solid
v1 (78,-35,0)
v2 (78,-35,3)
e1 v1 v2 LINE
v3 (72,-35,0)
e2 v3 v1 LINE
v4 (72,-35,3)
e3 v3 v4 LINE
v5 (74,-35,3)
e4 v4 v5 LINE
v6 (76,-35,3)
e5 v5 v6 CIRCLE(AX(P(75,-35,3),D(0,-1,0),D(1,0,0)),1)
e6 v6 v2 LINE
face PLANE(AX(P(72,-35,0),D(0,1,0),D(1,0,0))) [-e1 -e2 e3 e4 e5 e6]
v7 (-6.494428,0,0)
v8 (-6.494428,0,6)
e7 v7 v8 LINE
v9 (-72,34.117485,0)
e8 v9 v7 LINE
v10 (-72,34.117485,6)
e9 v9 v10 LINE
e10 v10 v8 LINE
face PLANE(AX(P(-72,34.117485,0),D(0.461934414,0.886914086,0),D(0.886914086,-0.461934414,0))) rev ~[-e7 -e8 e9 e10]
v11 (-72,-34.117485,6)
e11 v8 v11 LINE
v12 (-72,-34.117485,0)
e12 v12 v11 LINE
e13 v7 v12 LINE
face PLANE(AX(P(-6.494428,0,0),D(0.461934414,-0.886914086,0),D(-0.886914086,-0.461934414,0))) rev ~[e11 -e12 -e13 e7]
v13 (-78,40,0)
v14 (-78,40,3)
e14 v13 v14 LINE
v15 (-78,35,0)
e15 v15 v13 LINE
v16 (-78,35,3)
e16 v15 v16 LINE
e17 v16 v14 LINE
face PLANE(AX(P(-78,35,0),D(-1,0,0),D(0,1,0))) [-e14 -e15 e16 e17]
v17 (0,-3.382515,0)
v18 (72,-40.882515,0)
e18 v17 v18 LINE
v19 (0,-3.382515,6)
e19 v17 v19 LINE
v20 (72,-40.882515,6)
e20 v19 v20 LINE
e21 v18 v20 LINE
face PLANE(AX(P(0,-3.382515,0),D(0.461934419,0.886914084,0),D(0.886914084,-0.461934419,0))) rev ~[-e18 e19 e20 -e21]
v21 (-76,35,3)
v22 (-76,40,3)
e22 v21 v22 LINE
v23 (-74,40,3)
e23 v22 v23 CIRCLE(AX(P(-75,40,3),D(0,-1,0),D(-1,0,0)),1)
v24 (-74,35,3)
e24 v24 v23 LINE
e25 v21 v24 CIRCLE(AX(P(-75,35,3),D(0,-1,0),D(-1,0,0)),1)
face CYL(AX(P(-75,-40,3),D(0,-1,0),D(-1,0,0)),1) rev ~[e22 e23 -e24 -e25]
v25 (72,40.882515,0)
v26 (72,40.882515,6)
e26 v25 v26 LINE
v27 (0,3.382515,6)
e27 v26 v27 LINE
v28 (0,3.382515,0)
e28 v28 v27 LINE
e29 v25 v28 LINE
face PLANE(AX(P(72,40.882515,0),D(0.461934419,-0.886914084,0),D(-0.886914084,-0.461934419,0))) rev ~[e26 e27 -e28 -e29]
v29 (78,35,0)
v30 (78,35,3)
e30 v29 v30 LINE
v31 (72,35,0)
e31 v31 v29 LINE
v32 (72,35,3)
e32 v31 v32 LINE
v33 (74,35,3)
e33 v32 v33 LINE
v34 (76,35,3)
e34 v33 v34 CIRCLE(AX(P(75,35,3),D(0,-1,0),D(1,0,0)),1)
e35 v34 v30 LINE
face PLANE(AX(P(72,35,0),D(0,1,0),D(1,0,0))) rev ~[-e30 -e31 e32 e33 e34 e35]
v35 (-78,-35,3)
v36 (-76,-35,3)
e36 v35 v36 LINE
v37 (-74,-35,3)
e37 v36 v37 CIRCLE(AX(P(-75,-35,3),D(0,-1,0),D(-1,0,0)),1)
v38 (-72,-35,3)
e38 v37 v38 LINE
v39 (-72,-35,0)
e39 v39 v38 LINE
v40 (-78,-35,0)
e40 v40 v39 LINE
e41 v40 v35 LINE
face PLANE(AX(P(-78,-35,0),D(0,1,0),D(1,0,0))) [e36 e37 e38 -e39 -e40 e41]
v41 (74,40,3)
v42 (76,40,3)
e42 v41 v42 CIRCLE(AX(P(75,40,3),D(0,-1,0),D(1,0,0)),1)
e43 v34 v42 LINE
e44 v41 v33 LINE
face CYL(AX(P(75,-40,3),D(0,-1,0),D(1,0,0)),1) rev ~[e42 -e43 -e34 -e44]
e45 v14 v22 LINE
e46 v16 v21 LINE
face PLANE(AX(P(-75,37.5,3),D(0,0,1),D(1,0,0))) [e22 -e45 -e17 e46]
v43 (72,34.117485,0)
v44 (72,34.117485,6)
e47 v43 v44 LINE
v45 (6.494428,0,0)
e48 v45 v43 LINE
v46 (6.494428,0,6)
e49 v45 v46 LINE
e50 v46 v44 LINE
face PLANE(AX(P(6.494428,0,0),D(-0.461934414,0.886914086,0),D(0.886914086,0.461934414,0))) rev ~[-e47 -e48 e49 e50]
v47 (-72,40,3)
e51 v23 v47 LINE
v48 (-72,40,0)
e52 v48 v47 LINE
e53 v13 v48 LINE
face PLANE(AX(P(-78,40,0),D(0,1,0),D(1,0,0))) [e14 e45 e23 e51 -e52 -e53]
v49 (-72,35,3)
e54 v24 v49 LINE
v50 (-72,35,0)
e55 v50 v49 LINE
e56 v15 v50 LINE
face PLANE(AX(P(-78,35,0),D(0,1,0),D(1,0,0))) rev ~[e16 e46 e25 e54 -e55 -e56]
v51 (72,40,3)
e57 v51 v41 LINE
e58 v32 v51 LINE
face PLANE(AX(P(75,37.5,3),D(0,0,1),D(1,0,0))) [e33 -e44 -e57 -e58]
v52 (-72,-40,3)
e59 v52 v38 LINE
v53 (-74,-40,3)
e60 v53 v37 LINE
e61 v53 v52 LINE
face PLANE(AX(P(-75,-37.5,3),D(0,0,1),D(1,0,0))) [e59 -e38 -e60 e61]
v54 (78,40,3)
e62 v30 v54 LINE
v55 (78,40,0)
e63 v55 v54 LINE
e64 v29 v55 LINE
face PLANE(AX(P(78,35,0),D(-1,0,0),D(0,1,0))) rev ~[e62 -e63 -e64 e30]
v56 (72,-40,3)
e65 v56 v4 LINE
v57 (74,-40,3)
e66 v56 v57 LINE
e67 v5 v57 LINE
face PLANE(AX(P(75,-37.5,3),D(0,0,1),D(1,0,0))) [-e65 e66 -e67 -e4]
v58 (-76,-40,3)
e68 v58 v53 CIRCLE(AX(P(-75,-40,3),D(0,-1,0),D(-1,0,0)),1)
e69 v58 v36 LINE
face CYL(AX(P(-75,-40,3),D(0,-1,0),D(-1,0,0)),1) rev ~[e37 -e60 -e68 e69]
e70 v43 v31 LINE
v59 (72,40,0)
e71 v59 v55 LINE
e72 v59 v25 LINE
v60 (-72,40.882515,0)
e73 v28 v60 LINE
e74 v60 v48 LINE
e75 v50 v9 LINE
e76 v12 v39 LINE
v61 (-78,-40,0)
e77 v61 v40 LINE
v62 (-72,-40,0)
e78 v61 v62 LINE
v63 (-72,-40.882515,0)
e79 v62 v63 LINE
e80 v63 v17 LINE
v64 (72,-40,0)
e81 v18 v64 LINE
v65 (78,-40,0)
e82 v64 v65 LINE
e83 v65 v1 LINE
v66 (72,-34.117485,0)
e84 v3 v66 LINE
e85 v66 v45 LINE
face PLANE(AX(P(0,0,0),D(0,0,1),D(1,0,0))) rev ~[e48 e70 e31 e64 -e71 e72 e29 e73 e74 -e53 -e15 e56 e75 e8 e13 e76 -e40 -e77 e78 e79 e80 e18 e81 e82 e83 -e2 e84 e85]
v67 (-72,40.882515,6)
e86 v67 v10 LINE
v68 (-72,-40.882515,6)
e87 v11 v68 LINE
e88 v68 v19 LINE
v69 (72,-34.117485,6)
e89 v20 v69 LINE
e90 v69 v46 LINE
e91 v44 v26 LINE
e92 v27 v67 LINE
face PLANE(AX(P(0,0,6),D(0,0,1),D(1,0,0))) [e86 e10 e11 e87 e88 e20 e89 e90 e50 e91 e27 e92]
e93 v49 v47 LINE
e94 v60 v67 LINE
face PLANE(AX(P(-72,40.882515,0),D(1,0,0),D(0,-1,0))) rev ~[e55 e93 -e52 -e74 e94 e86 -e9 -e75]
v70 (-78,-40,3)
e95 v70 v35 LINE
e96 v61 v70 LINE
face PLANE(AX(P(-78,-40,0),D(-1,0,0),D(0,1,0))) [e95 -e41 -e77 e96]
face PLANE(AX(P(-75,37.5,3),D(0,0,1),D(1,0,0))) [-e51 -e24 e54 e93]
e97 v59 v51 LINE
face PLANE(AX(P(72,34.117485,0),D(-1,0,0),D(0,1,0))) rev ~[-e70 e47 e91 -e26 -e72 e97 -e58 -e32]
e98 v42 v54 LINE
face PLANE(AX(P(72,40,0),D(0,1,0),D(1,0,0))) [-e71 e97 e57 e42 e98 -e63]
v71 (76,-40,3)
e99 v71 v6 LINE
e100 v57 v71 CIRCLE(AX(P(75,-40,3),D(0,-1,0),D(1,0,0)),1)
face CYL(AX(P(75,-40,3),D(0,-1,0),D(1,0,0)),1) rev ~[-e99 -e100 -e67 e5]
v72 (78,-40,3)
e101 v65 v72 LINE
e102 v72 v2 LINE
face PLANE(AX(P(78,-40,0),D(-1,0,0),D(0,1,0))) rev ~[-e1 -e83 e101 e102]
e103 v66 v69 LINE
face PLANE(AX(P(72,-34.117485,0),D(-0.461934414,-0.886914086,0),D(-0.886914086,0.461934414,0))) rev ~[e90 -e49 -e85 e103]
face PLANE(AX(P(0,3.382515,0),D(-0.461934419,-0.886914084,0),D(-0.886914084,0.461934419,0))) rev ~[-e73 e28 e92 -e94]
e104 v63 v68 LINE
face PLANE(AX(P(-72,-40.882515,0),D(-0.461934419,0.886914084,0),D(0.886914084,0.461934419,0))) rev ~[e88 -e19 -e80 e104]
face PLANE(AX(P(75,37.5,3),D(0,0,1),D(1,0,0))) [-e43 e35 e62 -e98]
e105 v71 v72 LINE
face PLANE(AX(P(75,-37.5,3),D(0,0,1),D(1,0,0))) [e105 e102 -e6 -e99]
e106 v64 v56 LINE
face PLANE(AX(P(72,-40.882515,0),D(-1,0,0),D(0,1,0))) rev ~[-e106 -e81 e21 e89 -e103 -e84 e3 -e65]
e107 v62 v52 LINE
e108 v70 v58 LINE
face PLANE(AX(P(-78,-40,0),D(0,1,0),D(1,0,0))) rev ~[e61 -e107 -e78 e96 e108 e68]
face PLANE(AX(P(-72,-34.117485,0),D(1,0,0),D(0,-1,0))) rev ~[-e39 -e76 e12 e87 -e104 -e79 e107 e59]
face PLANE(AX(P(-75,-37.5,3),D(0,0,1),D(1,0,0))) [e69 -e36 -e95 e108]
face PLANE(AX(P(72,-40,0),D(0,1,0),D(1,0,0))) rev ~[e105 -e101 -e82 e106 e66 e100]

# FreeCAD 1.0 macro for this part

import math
import FreeCAD as App
import Part
import Sketcher
Q = App.Units.Quantity

doc = App.newDocument("Part")
body = doc.addObject("PartDesign::Body", "Body")

# Sketch on XY plane
sketch1 = doc.addObject("Sketcher::SketchObject", "Sketch")
body.addObject(sketch1)
sketch1.AttachmentSupport = (doc.XY_Plane, [""])
sketch1.MapMode = "FlatFace"
sketch1.addGeometry([
    Part.LineSegment(App.Vector(0, 3, 0), App.Vector(-72, 41, 0)),  # 0
    Part.LineSegment(App.Vector(-72, 41, 0), App.Vector(-72, 34, 0)),  # 1
    Part.LineSegment(App.Vector(-72, 34, 0), App.Vector(-6, 0, 0)),  # 2
    Part.LineSegment(App.Vector(-6, 0, 0), App.Vector(-72, -34, 0)),  # 3
    Part.LineSegment(App.Vector(-72, -34, 0), App.Vector(-72, -41, 0)),  # 4
    Part.LineSegment(App.Vector(-72, -41, 0), App.Vector(0, -3, 0)),  # 5
    Part.LineSegment(App.Vector(0, -3, 0), App.Vector(72, -41, 0)),  # 6
    Part.LineSegment(App.Vector(72, -41, 0), App.Vector(72, -34, 0)),  # 7
    Part.LineSegment(App.Vector(72, -34, 0), App.Vector(6, 0, 0)),  # 8
    Part.LineSegment(App.Vector(6, 0, 0), App.Vector(72, 34, 0)),  # 9
    Part.LineSegment(App.Vector(72, 34, 0), App.Vector(72, 41, 0)),  # 10
    Part.LineSegment(App.Vector(72, 41, 0), App.Vector(0, 3, 0)),  # 11
], False)
sketch1.addConstraint([
    Sketcher.Constraint("Coincident", 0, 2, 1, 1),
    Sketcher.Constraint("Coincident", 1, 2, 2, 1),
    Sketcher.Constraint("Coincident", 2, 2, 3, 1),
    Sketcher.Constraint("Coincident", 3, 2, 4, 1),
    Sketcher.Constraint("Coincident", 4, 2, 5, 1),
    Sketcher.Constraint("Coincident", 5, 2, 6, 1),
    Sketcher.Constraint("Coincident", 6, 2, 7, 1),
    Sketcher.Constraint("Coincident", 7, 2, 8, 1),
    Sketcher.Constraint("Coincident", 8, 2, 9, 1),
    Sketcher.Constraint("Coincident", 9, 2, 10, 1),
    Sketcher.Constraint("Coincident", 10, 2, 11, 1),
    Sketcher.Constraint("Coincident", 11, 2, 0, 1),
    Sketcher.Constraint("Vertical", 1),
    Sketcher.Constraint("Vertical", 4),
    Sketcher.Constraint("Vertical", 7),
    Sketcher.Constraint("Vertical", 10),
    Sketcher.Constraint("Symmetric", 0, 2, 6, 2, -1, 1),
    Sketcher.Constraint("Symmetric", 2, 2, 8, 2, -1, 1),
    Sketcher.Constraint("Symmetric", 3, 2, 9, 2, -1, 1),
    Sketcher.Constraint("Symmetric", 5, 2, 11, 2, -1, 1),
    Sketcher.Constraint("Symmetric", 4, 2, 6, 2, -2),
    Sketcher.Constraint("PointOnObject", 2, 2, -1),
    Sketcher.Constraint("PointOnObject", 5, 2, -2),
    Sketcher.Constraint("Parallel", 0, 2),
    Sketcher.Constraint("Parallel", 3, 5),
    Sketcher.Constraint("Parallel", 6, 8),
    Sketcher.Constraint("Parallel", 9, 11),
    Sketcher.Constraint("DistanceX", 0, 2, -1, 1, Q("72 mm")),
    Sketcher.Constraint("DistanceY", 3, 2, 0, 2, Q("75 mm")),
    Sketcher.Constraint("DistanceY", 5, 2, 1, 2, Q("37.5 mm")),
    Sketcher.Constraint("DistanceY", 1, 2, 1, 1, Q("6.76503 mm")),
])
pad1 = doc.addObject("PartDesign::Pad", "Pad")
body.addObject(pad1)
pad1.Profile = sketch1
pad1.Length = 6

# Sketch on XY plane
sketch2 = doc.addObject("Sketcher::SketchObject", "Sketch001")
body.addObject(sketch2)
sketch2.AttachmentSupport = (doc.XY_Plane, [""])
sketch2.MapMode = "FlatFace"
sketch2.addGeometry([
    Part.LineSegment(App.Vector(-78, 40, 0), App.Vector(-78, 35, 0)),  # 0
    Part.LineSegment(App.Vector(-78, 35, 0), App.Vector(-72, 35, 0)),  # 1
    Part.LineSegment(App.Vector(-72, 35, 0), App.Vector(-72, 40, 0)),  # 2
    Part.LineSegment(App.Vector(-72, 40, 0), App.Vector(-78, 40, 0)),  # 3
    Part.LineSegment(App.Vector(-78, -35, 0), App.Vector(-78, -40, 0)),  # 4
    Part.LineSegment(App.Vector(-78, -40, 0), App.Vector(-72, -40, 0)),  # 5
    Part.LineSegment(App.Vector(-72, -40, 0), App.Vector(-72, -35, 0)),  # 6
    Part.LineSegment(App.Vector(-72, -35, 0), App.Vector(-78, -35, 0)),  # 7
    Part.LineSegment(App.Vector(72, -35, 0), App.Vector(72, -40, 0)),  # 8
    Part.LineSegment(App.Vector(72, -40, 0), App.Vector(78, -40, 0)),  # 9
    Part.LineSegment(App.Vector(78, -40, 0), App.Vector(78, -35, 0)),  # 10
    Part.LineSegment(App.Vector(78, -35, 0), App.Vector(72, -35, 0)),  # 11
    Part.LineSegment(App.Vector(72, 40, 0), App.Vector(72, 35, 0)),  # 12
    Part.LineSegment(App.Vector(72, 35, 0), App.Vector(78, 35, 0)),  # 13
    Part.LineSegment(App.Vector(78, 35, 0), App.Vector(78, 40, 0)),  # 14
    Part.LineSegment(App.Vector(78, 40, 0), App.Vector(72, 40, 0)),  # 15
], False)
sketch2.addConstraint([
    Sketcher.Constraint("Coincident", 0, 2, 1, 1),
    Sketcher.Constraint("Coincident", 1, 2, 2, 1),
    Sketcher.Constraint("Coincident", 2, 2, 3, 1),
    Sketcher.Constraint("Coincident", 3, 2, 0, 1),
    Sketcher.Constraint("Coincident", 4, 2, 5, 1),
    Sketcher.Constraint("Coincident", 5, 2, 6, 1),
    Sketcher.Constraint("Coincident", 6, 2, 7, 1),
    Sketcher.Constraint("Coincident", 7, 2, 4, 1),
    Sketcher.Constraint("Coincident", 8, 2, 9, 1),
    Sketcher.Constraint("Coincident", 9, 2, 10, 1),
    Sketcher.Constraint("Coincident", 10, 2, 11, 1),
    Sketcher.Constraint("Coincident", 11, 2, 8, 1),
    Sketcher.Constraint("Coincident", 12, 2, 13, 1),
    Sketcher.Constraint("Coincident", 13, 2, 14, 1),
    Sketcher.Constraint("Coincident", 14, 2, 15, 1),
    Sketcher.Constraint("Coincident", 15, 2, 12, 1),
    Sketcher.Constraint("Vertical", 0),
    Sketcher.Constraint("Horizontal", 1),
    Sketcher.Constraint("Vertical", 2),
    Sketcher.Constraint("Horizontal", 3),
    Sketcher.Constraint("Vertical", 4),
    Sketcher.Constraint("Horizontal", 5),
    Sketcher.Constraint("Vertical", 6),
    Sketcher.Constraint("Horizontal", 7),
    Sketcher.Constraint("Vertical", 8),
    Sketcher.Constraint("Horizontal", 9),
    Sketcher.Constraint("Vertical", 10),
    Sketcher.Constraint("Horizontal", 11),
    Sketcher.Constraint("Vertical", 12),
    Sketcher.Constraint("Horizontal", 13),
    Sketcher.Constraint("Vertical", 14),
    Sketcher.Constraint("Horizontal", 15),
    Sketcher.Constraint("Symmetric", 2, 2, 8, 2, -1, 1),
    Sketcher.Constraint("Symmetric", 0, 2, 10, 2, -1, 1),
    Sketcher.Constraint("Symmetric", 6, 2, 12, 2, -1, 1),
    Sketcher.Constraint("Symmetric", 4, 2, 14, 2, -1, 1),
    Sketcher.Constraint("Symmetric", 5, 2, 8, 2, -2),
    Sketcher.Constraint("Symmetric", 7, 2, 10, 2, -2),
    Sketcher.Constraint("DistanceX", 1, 1, 1, 2, Q("6 mm")),
    Sketcher.Constraint("DistanceY", 0, 2, 0, 1, Q("5 mm")),
    Sketcher.Constraint("DistanceX", 0, 2, -1, 1, Q("78 mm")),
    Sketcher.Constraint("DistanceY", -1, 1, 0, 2, Q("35 mm")),
])
pad2 = doc.addObject("PartDesign::Pad", "Pad001")
body.addObject(pad2)
pad2.Profile = sketch2
pad2.Length = 3

# Sketch on XZ plane
sketch3 = doc.addObject("Sketcher::SketchObject", "Sketch002")
body.addObject(sketch3)
sketch3.AttachmentSupport = (doc.XZ_Plane, [""])
sketch3.MapMode = "FlatFace"
sketch3.AttachmentOffset = App.Placement(App.Vector(0, 0, 40), App.Rotation())
sketch3.addGeometry([
    Part.ArcOfCircle(Part.Circle(App.Vector(-75, 3, 0), App.Vector(0, 0, 1), 1), math.radians(180), math.radians(360)),
    Part.LineSegment(App.Vector(-74, 3, 0), App.Vector(-76, 3, 0)),
    Part.Circle(App.Vector(75, 3, 0), App.Vector(0, 0, 1), 1),
], False)
sketch3.addConstraint([
    Sketcher.Constraint("Coincident", 0, 1, 1, 2),
    Sketcher.Constraint("Coincident", 1, 1, 0, 2),
    Sketcher.Constraint("Horizontal", 1),
    Sketcher.Constraint("Equal", 0, 2),
    Sketcher.Constraint("Symmetric", 0, 3, 2, 3, -2),
    Sketcher.Constraint("Horizontal", 2, 3, 0, 1),
    Sketcher.Constraint("Diameter", 2, Q("2 mm")),
    Sketcher.Constraint("DistanceX", 0, 3, -1, 1, Q("75 mm")),
    Sketcher.Constraint("DistanceY", -1, 1, 0, 3, Q("3 mm")),
])
pocket1 = doc.addObject("PartDesign::Pocket", "Pocket")
body.addObject(pocket1)
pocket1.Profile = sketch3
pocket1.Length = 100

doc.recompute()
